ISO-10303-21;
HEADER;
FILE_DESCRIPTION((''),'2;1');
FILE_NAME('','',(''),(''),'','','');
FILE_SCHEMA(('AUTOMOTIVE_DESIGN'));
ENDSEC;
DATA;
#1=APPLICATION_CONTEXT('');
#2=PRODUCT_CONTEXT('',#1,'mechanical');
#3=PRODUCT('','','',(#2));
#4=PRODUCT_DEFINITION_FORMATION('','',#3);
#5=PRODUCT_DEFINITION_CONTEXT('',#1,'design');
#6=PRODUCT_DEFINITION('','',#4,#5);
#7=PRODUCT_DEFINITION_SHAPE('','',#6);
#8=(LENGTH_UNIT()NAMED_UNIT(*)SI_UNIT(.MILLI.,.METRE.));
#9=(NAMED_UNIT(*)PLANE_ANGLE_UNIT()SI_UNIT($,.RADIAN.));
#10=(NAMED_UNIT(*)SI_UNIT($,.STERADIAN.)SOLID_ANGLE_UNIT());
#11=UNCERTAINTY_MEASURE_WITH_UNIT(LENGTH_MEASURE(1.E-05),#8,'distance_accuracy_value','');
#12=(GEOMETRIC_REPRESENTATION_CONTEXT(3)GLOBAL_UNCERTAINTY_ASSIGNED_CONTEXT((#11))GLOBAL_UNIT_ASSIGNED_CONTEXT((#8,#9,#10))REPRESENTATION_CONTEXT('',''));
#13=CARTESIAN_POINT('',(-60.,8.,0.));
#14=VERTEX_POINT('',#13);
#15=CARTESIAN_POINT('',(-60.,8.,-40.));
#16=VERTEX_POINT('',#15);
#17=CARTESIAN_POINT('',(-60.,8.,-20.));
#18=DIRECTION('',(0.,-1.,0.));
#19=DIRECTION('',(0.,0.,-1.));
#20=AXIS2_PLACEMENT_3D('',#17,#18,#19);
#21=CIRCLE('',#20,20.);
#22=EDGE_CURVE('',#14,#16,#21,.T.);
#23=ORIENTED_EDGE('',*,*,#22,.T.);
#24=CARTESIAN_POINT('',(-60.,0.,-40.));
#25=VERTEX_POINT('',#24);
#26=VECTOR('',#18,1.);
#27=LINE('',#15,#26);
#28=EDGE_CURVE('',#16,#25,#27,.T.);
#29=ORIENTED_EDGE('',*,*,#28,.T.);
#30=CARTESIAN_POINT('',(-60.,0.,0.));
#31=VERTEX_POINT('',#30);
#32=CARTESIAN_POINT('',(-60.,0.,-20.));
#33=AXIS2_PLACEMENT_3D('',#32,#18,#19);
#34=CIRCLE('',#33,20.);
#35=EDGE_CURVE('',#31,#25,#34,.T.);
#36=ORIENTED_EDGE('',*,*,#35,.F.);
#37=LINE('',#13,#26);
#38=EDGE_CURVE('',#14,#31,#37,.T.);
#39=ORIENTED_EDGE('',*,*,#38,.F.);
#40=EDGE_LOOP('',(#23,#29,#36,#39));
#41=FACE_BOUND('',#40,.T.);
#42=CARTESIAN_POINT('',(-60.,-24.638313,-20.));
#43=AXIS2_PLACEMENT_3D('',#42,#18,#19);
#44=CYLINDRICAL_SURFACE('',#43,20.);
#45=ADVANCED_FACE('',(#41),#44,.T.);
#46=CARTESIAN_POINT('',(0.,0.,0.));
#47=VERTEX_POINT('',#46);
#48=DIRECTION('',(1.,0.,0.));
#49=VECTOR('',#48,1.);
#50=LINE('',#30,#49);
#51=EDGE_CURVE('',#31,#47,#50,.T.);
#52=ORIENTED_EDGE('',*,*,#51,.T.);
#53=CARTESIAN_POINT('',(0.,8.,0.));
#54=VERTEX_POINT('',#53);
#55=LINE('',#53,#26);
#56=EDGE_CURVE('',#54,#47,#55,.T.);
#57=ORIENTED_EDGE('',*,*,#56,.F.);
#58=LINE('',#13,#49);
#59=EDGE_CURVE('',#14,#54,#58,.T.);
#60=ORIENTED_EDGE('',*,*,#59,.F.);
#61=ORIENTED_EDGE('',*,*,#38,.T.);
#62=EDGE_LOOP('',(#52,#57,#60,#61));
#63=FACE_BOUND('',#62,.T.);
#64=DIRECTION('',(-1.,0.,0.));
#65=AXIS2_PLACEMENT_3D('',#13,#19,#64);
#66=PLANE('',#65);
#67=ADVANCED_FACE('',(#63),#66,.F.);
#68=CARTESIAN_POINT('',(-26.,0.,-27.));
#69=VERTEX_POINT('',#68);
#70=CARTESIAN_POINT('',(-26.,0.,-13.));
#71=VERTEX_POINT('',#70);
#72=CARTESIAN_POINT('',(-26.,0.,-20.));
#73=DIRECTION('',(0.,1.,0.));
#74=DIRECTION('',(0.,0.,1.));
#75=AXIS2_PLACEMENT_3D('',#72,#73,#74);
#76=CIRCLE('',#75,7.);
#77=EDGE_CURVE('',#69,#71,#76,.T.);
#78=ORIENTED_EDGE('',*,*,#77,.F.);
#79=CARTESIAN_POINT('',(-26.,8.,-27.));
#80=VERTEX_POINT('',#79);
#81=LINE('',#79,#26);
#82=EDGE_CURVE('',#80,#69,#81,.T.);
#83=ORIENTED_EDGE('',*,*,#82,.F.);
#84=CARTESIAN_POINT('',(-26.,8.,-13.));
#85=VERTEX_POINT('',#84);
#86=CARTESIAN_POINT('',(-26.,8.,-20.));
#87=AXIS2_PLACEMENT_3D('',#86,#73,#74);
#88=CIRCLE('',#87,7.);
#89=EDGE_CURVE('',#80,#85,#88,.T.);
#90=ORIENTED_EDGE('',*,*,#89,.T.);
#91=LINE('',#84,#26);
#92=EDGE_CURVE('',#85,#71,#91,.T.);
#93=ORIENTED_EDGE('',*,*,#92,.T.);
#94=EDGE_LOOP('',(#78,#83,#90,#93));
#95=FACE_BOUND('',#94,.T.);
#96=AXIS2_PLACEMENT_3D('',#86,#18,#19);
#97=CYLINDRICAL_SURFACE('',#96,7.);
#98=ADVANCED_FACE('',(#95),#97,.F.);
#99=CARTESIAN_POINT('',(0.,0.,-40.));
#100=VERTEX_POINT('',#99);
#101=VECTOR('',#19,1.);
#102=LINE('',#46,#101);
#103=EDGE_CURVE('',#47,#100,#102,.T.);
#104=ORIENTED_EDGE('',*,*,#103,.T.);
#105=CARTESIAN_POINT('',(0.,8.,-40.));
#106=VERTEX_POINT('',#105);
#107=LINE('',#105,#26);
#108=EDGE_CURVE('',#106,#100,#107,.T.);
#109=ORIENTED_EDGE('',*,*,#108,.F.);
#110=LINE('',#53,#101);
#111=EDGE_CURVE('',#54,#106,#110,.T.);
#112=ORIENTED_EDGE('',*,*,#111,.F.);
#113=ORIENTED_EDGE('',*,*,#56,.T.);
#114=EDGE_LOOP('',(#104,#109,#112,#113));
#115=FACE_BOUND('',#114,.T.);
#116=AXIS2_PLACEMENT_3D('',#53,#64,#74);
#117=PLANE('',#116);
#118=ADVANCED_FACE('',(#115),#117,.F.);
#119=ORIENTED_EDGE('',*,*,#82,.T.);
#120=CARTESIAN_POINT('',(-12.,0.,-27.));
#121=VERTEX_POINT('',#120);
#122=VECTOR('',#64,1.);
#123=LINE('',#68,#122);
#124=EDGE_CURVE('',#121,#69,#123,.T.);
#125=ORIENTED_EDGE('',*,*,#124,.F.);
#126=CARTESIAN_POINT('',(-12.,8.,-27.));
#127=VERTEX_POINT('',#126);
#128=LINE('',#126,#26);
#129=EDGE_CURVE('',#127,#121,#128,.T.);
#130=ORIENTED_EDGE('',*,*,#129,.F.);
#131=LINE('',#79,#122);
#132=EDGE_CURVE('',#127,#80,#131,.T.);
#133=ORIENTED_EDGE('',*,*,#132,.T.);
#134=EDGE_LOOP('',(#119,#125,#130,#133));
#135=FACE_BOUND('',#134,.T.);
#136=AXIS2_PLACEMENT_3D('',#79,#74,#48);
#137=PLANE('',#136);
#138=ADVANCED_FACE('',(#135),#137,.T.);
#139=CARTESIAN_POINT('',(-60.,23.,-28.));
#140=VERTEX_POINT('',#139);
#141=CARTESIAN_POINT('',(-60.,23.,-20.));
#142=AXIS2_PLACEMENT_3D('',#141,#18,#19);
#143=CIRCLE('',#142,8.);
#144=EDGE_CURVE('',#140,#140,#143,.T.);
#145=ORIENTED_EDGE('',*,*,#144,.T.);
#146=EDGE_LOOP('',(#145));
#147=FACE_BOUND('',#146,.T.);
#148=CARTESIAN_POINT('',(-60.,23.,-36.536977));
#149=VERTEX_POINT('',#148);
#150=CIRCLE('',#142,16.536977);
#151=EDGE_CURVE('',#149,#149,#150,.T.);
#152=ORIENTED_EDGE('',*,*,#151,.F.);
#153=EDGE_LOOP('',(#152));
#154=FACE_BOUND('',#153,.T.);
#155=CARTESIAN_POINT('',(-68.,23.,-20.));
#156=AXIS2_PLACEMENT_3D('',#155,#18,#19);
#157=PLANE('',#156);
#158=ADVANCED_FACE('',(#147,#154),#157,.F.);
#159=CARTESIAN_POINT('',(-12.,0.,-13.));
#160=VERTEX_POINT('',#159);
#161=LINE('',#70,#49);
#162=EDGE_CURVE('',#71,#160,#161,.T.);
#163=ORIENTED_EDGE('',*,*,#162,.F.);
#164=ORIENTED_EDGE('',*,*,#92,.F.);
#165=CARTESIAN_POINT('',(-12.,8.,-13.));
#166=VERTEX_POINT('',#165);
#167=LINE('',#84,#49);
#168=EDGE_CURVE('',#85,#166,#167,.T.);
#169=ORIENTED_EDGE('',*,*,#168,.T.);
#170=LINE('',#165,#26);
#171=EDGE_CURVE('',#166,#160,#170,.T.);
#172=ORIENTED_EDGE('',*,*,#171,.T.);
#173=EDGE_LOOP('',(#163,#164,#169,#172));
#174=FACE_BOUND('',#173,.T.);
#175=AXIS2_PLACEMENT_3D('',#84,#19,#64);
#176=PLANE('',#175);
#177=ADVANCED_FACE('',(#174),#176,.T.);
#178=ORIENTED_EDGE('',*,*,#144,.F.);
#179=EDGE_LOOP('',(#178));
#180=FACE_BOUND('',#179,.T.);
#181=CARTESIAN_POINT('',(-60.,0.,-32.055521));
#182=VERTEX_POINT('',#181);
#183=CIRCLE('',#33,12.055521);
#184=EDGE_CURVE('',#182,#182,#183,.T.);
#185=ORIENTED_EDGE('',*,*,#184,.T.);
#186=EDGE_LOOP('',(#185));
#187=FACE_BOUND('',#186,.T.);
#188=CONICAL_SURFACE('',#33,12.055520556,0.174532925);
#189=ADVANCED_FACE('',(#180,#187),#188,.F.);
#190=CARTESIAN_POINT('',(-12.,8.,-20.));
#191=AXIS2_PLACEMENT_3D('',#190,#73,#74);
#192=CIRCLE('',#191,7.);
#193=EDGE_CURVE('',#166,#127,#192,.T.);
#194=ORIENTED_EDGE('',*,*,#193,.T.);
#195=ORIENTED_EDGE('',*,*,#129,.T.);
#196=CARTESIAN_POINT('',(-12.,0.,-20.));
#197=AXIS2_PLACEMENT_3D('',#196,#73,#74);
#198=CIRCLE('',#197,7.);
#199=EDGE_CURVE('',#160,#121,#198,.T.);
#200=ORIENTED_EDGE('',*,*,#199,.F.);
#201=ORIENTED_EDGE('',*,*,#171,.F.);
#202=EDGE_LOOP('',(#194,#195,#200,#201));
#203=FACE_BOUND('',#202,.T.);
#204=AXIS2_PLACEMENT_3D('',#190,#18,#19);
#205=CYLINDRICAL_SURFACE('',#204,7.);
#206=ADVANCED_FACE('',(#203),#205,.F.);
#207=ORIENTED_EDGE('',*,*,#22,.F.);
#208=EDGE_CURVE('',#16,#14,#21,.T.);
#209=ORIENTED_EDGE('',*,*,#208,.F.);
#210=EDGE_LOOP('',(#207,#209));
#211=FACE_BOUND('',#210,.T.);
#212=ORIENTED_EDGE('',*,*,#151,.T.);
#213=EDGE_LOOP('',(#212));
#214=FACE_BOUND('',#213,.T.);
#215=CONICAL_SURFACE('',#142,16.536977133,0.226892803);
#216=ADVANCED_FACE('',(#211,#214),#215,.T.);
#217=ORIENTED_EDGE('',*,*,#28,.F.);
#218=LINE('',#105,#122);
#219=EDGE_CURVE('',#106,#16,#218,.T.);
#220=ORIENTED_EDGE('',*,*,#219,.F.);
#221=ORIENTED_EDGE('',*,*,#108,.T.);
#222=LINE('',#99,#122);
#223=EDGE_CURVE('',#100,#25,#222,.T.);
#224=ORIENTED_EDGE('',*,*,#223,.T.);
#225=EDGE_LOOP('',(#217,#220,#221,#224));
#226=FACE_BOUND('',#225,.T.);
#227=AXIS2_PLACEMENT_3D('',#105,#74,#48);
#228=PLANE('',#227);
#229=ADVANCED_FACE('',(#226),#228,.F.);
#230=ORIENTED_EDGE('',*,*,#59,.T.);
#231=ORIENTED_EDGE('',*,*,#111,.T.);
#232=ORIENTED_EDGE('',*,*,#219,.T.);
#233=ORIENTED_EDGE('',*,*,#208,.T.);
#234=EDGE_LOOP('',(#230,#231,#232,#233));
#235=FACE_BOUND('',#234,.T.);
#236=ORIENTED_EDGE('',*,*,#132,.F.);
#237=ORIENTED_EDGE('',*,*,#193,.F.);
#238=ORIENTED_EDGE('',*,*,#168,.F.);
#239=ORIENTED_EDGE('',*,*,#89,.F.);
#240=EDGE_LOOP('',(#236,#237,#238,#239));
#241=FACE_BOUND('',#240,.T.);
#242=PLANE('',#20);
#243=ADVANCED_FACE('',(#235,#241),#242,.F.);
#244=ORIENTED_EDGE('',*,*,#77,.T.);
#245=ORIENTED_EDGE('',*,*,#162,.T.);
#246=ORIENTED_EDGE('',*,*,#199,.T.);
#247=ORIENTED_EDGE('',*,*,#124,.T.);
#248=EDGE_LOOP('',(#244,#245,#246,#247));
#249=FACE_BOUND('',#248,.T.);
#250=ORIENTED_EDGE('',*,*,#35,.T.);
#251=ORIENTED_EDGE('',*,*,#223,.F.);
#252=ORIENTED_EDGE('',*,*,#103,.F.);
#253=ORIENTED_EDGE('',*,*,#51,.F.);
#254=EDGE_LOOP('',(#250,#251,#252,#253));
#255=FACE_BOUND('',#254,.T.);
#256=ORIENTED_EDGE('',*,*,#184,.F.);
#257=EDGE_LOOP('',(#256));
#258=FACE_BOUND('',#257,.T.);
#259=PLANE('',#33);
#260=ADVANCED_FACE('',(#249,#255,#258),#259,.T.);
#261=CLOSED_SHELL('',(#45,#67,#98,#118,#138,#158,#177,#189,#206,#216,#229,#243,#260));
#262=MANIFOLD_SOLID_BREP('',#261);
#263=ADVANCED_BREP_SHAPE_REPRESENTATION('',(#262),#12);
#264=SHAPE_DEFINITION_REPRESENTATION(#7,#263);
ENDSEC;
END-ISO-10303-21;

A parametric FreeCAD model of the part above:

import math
import FreeCAD as App
import Part
import Sketcher

V = App.Vector
Q = App.Units.Quantity


def add_polygon(sketch, points):
    """Adds a closed chain of lines whose ends are joined by coincident constraints."""
    first, n = sketch.GeometryCount, len(points)
    for a, b in zip(points, points[1:] + points[:1]):
        sketch.addGeometry(Part.LineSegment(App.Vector(*a, 0), App.Vector(*b, 0)), False)
    for i in range(n):
        sketch.addConstraint(Sketcher.Constraint("Coincident", first + i, 2, first + (i + 1) % n, 1))

doc = App.newDocument("Part")
params = doc.addObject("Spreadsheet::Sheet", "Params")
for row, (alias, value) in enumerate([
    ("sketch1_radius", "20 mm"),
    ("sketch1_radius2", "7 mm"),
    ("sketch1_width", "60 mm"),
    ("sketch1_width2", "14 mm"),
    ("pad1_length", "8 mm"),
    ("sketch2_height", "8 mm"),
    ("sketch2_height2", "23 mm"),
    ("revolution_angle", "360 deg"),
], start=1):
    params.set(f"A{row}", alias)
    params.set(f"B{row}", "=" + value)
    params.setAlias(f"B{row}", alias)

body = doc.addObject("PartDesign::Body", "Body")

sketch1 = body.newObject("Sketcher::SketchObject", "Sketch")
sketch1.AttachmentSupport = (doc.getObject("XZ_Plane"), [""])
sketch1.MapMode = "FlatFace"
sketch1.addGeometry([
    Part.LineSegment(V(0, 0, 0), V(0, -40, 0)),
    Part.LineSegment(V(0, -40, 0), V(-60, -40, 0)),
    Part.ArcOfCircle(Part.Circle(V(-60, -20, 0), V(0, 0, 1), 20), math.radians(-90), math.radians(90)),
    Part.LineSegment(V(-60, 0, 0), V(0, 0, 0)),
    Part.ArcOfCircle(Part.Circle(V(-26, -20, 0), V(0, 0, 1), 7), math.radians(90), math.radians(270)),
    Part.LineSegment(V(-26, -27, 0), V(-12, -27, 0)),
    Part.ArcOfCircle(Part.Circle(V(-12, -20, 0), V(0, 0, 1), 7), math.radians(-90), math.radians(90)),
    Part.LineSegment(V(-12, -13, 0), V(-26, -13, 0)),
], False)
sketch1.addConstraint([
    Sketcher.Constraint("Coincident", 0, 2, 1, 1),
    Sketcher.Constraint("Tangent", 1, 2, 2, 1),
    Sketcher.Constraint("Tangent", 2, 2, 3, 1),
    Sketcher.Constraint("Coincident", 3, 2, 0, 1),
    Sketcher.Constraint("Tangent", 4, 2, 5, 1),
    Sketcher.Constraint("Tangent", 5, 2, 6, 1),
    Sketcher.Constraint("Tangent", 6, 2, 7, 1),
    Sketcher.Constraint("Tangent", 7, 2, 4, 1),
    Sketcher.Constraint("Vertical", 0),
    Sketcher.Constraint("Horizontal", 1),
    Sketcher.Constraint("Horizontal", 3),
    Sketcher.Constraint("Horizontal", 5),
    Sketcher.Constraint("Horizontal", 7),
    Sketcher.Constraint("Coincident", 3, 2, -1, 1),
    Sketcher.Constraint("Horizontal", 2, 3, 4, 3),
    Sketcher.Constraint("Radius", 2, Q("20 mm")),
    Sketcher.Constraint("Radius", 4, Q("7 mm")),
    Sketcher.Constraint("DistanceX", 1, 2, 1, 1, Q("60 mm")),
    Sketcher.Constraint("DistanceX", 5, 1, 5, 2, Q("14 mm")),
    Sketcher.Constraint("DistanceX", 4, 3, -1, 1, Q("26 mm")),
])
sketch1.setExpression("Constraints[15]", "Params.sketch1_radius")
sketch1.setExpression("Constraints[16]", "Params.sketch1_radius2")
sketch1.setExpression("Constraints[17]", "Params.sketch1_width")
sketch1.setExpression("Constraints[18]", "Params.sketch1_width2")
pad1 = body.newObject("PartDesign::Pad", "Pad")
pad1.Profile = sketch1
pad1.setExpression("Length", "Params.pad1_length")
pad1.Reversed = True

sketch2 = body.newObject("Sketcher::SketchObject", "Sketch001")
sketch2.AttachmentSupport = (doc.getObject("XY_Plane"), [""])
sketch2.MapMode = "FlatFace"
sketch2.AttachmentOffset = App.Placement(V(0, 0, -20), App.Rotation())
add_polygon(sketch2, [(-72, 0), (-68, 23), (-77, 23), (-80, 8), (-80, 0)])
sketch2.addGeometry(Part.LineSegment(V(-60, 0, 0), V(-60, 23, 0)), True)
sketch2.addConstraint([
    Sketcher.Constraint("Horizontal", 1),
    Sketcher.Constraint("Vertical", 3),
    Sketcher.Constraint("Horizontal", 4),
    Sketcher.Constraint("Vertical", 5),
    Sketcher.Constraint("PointOnObject", 3, 2, -1),
    Sketcher.Constraint("PointOnObject", 5, 1, -1),
    Sketcher.Constraint("Horizontal", 1, 2, 5, 2),
    Sketcher.Constraint("DistanceY", 3, 2, 3, 1, Q("8 mm")),
    Sketcher.Constraint("DistanceY", 5, 1, 5, 2, Q("23 mm")),
    Sketcher.Constraint("Angle", 0, Q("80 deg")),
    Sketcher.Constraint("Angle", 2, Q("-103 deg")),
    Sketcher.Constraint("DistanceX", 0, 2, -1, 1, Q("68 mm")),
    Sketcher.Constraint("DistanceX", 2, 2, -1, 1, Q("80 mm")),
    Sketcher.Constraint("DistanceX", 5, 1, -1, 1, Q("60 mm")),
])
sketch2.setExpression("Constraints[12]", "Params.sketch2_height")
sketch2.setExpression("Constraints[13]", "Params.sketch2_height2")
revolution = body.newObject("PartDesign::Revolution", "Revolution")
revolution.Profile = sketch2
revolution.ReferenceAxis = (sketch2, ["Axis0"])
revolution.setExpression("Angle", "Params.revolution_angle")

doc.recompute()
